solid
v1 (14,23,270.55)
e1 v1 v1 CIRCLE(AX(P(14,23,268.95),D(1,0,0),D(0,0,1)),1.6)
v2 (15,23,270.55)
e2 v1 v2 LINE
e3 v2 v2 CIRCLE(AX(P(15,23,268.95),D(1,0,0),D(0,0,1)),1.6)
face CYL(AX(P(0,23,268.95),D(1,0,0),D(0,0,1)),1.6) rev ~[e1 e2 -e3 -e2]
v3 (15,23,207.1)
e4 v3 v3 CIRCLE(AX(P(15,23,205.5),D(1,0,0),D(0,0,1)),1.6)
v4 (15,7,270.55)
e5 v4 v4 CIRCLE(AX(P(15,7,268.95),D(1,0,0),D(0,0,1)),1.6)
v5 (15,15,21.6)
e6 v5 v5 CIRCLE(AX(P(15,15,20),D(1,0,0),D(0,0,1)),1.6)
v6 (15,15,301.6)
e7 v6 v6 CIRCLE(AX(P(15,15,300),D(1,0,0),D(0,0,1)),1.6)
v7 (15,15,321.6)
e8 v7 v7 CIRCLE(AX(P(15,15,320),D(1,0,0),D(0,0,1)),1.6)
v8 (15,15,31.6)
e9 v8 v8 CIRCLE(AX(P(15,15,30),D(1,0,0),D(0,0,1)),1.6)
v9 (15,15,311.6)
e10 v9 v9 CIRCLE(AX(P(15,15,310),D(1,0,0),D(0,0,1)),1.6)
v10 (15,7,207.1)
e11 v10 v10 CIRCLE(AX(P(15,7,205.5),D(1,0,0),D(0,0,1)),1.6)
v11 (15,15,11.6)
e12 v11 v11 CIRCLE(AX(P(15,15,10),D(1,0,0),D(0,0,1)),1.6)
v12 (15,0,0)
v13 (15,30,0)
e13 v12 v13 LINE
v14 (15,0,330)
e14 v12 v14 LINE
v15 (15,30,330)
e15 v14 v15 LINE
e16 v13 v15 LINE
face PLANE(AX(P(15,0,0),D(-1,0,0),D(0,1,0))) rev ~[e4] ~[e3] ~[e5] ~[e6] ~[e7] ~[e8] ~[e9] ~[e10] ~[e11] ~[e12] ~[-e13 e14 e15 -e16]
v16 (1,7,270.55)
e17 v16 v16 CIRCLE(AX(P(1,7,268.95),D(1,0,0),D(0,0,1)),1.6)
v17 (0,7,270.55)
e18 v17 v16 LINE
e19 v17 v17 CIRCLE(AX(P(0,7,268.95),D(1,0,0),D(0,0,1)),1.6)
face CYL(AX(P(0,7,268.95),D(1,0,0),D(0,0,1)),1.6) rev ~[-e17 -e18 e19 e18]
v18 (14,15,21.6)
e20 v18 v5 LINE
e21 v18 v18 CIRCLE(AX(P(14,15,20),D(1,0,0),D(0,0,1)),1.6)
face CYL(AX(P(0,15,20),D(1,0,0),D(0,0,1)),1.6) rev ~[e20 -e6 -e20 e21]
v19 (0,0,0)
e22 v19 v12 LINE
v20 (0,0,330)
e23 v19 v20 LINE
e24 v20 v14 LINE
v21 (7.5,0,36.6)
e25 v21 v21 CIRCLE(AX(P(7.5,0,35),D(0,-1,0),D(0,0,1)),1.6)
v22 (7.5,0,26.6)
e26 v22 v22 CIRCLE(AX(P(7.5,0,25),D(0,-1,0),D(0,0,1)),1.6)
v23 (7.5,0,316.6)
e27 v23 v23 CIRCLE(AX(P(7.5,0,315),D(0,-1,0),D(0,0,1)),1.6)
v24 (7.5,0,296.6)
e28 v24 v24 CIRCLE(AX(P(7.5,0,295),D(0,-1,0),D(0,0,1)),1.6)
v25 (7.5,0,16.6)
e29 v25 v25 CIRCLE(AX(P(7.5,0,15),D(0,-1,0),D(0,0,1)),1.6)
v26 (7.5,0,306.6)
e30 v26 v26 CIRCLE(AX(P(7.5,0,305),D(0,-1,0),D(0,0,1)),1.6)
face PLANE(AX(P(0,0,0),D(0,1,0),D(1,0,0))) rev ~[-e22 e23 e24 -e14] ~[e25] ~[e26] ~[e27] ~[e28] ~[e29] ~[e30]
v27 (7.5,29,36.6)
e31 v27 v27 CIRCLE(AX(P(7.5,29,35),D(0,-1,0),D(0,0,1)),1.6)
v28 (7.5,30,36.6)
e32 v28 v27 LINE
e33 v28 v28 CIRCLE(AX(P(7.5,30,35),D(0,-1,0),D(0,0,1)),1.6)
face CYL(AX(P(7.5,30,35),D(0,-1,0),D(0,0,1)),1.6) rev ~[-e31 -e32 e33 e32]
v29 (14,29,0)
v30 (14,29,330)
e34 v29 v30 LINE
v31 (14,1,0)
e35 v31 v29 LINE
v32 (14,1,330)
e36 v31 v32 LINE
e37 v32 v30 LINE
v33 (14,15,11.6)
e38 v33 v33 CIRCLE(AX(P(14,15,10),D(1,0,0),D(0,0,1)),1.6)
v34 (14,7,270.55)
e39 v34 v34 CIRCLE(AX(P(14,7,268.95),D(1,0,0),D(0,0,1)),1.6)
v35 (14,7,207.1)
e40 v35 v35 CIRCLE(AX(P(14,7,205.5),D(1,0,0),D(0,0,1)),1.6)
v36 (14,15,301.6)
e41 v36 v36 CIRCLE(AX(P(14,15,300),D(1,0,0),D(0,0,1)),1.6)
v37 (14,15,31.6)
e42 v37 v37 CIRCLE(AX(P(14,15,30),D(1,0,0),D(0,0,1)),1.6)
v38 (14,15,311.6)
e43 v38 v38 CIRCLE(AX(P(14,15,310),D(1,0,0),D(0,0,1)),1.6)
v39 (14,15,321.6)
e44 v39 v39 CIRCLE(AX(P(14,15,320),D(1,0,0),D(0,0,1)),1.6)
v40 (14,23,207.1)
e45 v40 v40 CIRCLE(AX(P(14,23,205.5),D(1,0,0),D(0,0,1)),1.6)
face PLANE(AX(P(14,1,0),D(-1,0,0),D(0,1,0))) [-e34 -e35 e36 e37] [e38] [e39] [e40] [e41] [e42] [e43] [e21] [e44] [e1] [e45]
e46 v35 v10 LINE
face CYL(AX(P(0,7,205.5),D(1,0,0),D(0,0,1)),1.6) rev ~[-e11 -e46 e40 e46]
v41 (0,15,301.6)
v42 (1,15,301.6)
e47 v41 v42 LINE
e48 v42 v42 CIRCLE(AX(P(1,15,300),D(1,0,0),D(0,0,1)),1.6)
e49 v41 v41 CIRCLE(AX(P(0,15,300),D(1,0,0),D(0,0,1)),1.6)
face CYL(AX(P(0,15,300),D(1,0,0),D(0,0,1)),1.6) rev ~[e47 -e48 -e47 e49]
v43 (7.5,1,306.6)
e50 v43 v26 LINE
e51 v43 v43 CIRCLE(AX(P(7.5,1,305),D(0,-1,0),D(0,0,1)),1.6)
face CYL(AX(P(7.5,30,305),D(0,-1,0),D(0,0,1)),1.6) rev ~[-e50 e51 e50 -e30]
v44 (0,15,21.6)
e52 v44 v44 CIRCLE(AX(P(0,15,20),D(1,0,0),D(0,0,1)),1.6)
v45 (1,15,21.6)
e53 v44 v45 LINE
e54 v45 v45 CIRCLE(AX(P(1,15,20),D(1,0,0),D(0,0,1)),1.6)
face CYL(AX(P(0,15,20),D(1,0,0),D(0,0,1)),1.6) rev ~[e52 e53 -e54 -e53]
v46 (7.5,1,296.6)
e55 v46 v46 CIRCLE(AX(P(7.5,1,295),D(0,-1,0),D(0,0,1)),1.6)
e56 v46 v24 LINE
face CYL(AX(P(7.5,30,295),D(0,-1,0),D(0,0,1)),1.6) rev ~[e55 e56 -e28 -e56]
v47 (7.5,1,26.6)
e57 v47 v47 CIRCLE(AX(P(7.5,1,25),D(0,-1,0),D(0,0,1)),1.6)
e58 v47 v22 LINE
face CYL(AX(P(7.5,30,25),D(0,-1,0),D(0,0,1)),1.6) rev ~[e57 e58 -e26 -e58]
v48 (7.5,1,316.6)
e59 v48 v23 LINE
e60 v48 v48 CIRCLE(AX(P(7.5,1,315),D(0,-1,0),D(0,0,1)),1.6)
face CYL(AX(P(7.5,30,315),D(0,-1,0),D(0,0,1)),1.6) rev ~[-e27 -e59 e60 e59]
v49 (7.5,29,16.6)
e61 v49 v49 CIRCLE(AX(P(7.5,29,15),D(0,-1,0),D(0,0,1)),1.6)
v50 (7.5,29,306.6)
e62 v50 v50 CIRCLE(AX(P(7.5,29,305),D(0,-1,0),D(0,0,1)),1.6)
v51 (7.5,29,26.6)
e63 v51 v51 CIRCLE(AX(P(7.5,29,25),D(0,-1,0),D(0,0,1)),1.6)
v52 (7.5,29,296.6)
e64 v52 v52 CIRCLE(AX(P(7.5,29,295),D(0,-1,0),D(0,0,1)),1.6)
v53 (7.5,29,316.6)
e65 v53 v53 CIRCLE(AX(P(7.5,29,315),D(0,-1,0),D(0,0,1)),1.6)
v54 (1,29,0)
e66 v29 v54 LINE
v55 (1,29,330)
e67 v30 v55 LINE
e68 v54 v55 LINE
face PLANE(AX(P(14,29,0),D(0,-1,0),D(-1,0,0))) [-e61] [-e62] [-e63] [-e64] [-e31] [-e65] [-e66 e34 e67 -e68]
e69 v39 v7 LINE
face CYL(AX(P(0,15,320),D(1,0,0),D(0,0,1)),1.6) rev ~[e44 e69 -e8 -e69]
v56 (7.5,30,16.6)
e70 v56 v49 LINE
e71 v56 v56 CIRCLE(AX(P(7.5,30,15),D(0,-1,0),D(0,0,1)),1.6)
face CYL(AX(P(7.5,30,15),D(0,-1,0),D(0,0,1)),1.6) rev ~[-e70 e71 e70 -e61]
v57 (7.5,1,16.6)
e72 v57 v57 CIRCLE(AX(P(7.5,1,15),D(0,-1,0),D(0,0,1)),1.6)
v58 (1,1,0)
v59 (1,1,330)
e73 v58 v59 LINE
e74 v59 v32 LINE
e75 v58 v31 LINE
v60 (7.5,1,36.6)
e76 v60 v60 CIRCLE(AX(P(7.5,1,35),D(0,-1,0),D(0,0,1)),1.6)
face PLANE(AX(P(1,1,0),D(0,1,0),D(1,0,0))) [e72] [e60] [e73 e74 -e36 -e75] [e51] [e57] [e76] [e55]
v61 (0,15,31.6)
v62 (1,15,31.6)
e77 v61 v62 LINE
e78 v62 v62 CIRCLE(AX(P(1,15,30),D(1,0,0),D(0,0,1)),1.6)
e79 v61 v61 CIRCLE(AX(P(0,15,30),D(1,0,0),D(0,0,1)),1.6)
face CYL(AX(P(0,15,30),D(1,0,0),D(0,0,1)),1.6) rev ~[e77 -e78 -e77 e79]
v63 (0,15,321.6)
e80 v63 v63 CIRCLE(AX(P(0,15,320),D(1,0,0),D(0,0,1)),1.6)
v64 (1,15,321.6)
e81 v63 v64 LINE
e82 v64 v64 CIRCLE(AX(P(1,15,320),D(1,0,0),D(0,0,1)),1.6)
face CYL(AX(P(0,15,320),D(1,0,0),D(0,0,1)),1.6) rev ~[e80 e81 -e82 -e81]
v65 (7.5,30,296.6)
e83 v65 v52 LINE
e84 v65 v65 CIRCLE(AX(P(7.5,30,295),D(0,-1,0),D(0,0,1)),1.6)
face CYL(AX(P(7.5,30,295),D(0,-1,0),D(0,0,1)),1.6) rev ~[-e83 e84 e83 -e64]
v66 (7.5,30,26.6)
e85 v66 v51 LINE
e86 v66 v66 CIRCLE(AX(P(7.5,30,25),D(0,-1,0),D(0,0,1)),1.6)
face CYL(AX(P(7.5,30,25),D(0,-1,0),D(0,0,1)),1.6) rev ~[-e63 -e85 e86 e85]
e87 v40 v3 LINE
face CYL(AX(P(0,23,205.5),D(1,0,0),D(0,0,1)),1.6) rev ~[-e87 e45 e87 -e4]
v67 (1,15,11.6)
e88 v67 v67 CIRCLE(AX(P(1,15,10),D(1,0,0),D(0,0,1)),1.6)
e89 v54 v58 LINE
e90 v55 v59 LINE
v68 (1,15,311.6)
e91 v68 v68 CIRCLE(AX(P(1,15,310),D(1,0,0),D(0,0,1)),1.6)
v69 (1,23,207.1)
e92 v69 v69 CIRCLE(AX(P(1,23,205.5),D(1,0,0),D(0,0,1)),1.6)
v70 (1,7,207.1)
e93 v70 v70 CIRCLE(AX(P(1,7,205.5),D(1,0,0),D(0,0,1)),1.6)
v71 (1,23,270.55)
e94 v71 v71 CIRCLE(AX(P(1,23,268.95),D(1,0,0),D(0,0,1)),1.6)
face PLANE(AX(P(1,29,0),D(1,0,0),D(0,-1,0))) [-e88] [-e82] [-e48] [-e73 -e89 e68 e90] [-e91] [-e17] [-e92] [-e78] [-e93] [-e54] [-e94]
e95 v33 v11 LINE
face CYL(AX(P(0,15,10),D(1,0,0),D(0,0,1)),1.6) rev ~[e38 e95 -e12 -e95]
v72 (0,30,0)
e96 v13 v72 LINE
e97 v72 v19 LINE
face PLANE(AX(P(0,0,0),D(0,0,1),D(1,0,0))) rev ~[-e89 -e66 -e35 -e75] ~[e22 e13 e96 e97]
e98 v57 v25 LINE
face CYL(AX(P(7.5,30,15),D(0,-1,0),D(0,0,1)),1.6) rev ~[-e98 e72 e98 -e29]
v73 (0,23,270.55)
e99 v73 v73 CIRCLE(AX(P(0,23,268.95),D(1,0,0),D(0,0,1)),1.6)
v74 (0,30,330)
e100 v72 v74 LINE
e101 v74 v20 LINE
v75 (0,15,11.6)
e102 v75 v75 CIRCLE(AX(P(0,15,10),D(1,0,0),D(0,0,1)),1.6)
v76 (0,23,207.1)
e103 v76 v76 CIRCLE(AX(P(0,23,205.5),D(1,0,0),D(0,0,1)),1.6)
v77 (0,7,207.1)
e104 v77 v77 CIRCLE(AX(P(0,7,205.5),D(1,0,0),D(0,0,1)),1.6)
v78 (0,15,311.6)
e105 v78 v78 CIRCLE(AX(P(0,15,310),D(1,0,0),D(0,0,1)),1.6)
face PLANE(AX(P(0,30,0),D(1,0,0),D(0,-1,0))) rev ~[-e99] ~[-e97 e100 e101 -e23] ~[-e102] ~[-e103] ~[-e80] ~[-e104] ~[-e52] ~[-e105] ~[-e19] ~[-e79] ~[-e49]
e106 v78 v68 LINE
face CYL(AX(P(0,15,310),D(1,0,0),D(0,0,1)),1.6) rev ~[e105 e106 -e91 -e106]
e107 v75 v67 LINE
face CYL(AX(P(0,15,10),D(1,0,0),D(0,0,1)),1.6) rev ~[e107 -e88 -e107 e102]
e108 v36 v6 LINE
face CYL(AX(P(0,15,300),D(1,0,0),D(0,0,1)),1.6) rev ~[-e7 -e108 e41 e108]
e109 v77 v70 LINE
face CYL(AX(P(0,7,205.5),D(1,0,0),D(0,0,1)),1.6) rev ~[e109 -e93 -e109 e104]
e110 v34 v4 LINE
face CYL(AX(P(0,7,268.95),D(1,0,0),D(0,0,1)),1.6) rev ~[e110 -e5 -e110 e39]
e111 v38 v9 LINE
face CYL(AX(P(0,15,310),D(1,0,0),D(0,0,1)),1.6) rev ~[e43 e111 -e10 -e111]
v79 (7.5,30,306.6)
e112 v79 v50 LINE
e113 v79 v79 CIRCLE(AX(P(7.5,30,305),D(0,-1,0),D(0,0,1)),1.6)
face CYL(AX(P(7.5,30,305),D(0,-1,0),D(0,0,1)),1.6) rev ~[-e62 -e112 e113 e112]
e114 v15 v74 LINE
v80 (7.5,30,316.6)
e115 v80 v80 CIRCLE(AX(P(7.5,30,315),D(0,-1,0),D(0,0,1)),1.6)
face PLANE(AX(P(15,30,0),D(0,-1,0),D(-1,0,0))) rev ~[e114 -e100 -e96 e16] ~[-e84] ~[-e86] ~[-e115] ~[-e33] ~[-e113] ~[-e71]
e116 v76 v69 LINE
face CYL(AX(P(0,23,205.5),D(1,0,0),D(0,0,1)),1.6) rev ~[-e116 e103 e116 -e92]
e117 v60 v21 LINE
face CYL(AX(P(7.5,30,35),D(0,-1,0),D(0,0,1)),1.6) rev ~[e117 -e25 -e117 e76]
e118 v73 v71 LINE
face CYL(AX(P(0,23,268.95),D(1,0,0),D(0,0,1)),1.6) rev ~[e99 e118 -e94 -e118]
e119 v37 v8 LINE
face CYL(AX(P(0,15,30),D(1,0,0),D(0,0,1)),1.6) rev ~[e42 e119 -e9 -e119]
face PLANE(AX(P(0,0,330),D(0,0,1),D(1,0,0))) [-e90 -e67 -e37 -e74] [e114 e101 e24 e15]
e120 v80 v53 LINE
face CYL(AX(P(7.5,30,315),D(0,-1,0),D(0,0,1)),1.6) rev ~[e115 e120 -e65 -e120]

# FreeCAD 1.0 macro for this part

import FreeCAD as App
import Part
import Sketcher


def add_polygon(sketch, points):
    """Adds a closed chain of lines whose ends are joined by coincident constraints."""
    first, n = sketch.GeometryCount, len(points)
    for a, b in zip(points, points[1:] + points[:1]):
        sketch.addGeometry(Part.LineSegment(App.Vector(*a, 0), App.Vector(*b, 0)), False)
    for i in range(n):
        sketch.addConstraint(Sketcher.Constraint("Coincident", first + i, 2, first + (i + 1) % n, 1))

doc = App.newDocument("Part")
params = doc.addObject("Spreadsheet::Sheet", "Params")
for row, (alias, value) in enumerate([
    ("sketch1_width", "15 mm"),
    ("sketch1_width2", "13 mm"),
    ("sketch1_height", "30 mm"),
    ("sketch1_height2", "28 mm"),
    ("pad1_length", "330 mm"),
    ("sketch2_diameter", "3.2 mm"),
    ("hole_diameter", "3.2 mm"),
    ("hole_depth", "30 mm"),
    ("sketch3_diameter", "3.2 mm"),
    ("hole2_diameter", "3.2 mm"),
    ("hole2_depth", "15 mm"),
    ("sketch4_diameter", "3.2 mm"),
    ("hole3_diameter", "3.2 mm"),
    ("hole3_depth", "15 mm"),
], start=1):
    params.set(f"A{row}", alias)
    params.set(f"B{row}", "=" + value)
    params.setAlias(f"B{row}", alias)

body = doc.addObject("PartDesign::Body", "Body")

sketch1 = body.newObject("Sketcher::SketchObject", "Sketch")
sketch1.AttachmentSupport = (doc.getObject("XY_Plane"), [""])
sketch1.MapMode = "FlatFace"
add_polygon(sketch1, [(0, 30), (0, 0), (15, 0), (15, 30)])
add_polygon(sketch1, [(14, 1), (1, 1), (1, 29), (14, 29)])
sketch1.addConstraint(Sketcher.Constraint("Vertical", 0))
sketch1.addConstraint(Sketcher.Constraint("Horizontal", 1))
sketch1.addConstraint(Sketcher.Constraint("Vertical", 2))
sketch1.addConstraint(Sketcher.Constraint("Horizontal", 3))
sketch1.addConstraint(Sketcher.Constraint("Horizontal", 4))
sketch1.addConstraint(Sketcher.Constraint("Vertical", 5))
sketch1.addConstraint(Sketcher.Constraint("Horizontal", 6))
sketch1.addConstraint(Sketcher.Constraint("Vertical", 7))
sketch1.addConstraint(Sketcher.Constraint("Coincident", 0, 2, -1, 1))
sketch1.addConstraint(Sketcher.Constraint("DistanceX", 1, 1, 1, 2, 15.0))
sketch1.addConstraint(Sketcher.Constraint("DistanceX", 4, 2, 4, 1, 13.0))
sketch1.addConstraint(Sketcher.Constraint("DistanceY", 0, 2, 0, 1, 30.0))
sketch1.addConstraint(Sketcher.Constraint("DistanceY", 5, 1, 5, 2, 28.0))
sketch1.addConstraint(Sketcher.Constraint("DistanceX", -1, 1, 4, 2, 1.0))
sketch1.addConstraint(Sketcher.Constraint("DistanceY", -1, 1, 4, 2, 1.0))
sketch1.setExpression("Constraints[17]", "Params.sketch1_width")
sketch1.setExpression("Constraints[18]", "Params.sketch1_width2")
sketch1.setExpression("Constraints[19]", "Params.sketch1_height")
sketch1.setExpression("Constraints[20]", "Params.sketch1_height2")
pad1 = body.newObject("PartDesign::Pad", "Pad")
pad1.Profile = sketch1
pad1.setExpression("Length", "Params.pad1_length")

sketch2 = body.newObject("Sketcher::SketchObject", "Sketch001")
sketch2.AttachmentSupport = (doc.getObject("XZ_Plane"), [""])
sketch2.MapMode = "FlatFace"
sketch2.AttachmentOffset = App.Placement(App.Vector(0, 0, -30), App.Rotation())
sketch2.addGeometry(Part.Circle(App.Vector(7.5, 315, 0), App.Vector(0, 0, 1), 1.6), False)
sketch2.addGeometry(Part.Circle(App.Vector(7.5, 305, 0), App.Vector(0, 0, 1), 1.6), False)
sketch2.addGeometry(Part.Circle(App.Vector(7.5, 295, 0), App.Vector(0, 0, 1), 1.6), False)
sketch2.addGeometry(Part.Circle(App.Vector(7.5, 15, 0), App.Vector(0, 0, 1), 1.6), False)
sketch2.addGeometry(Part.Circle(App.Vector(7.5, 25, 0), App.Vector(0, 0, 1), 1.6), False)
sketch2.addGeometry(Part.Circle(App.Vector(7.5, 35, 0), App.Vector(0, 0, 1), 1.6), False)
sketch2.addConstraint(Sketcher.Constraint("Equal", 0, 1))
sketch2.addConstraint(Sketcher.Constraint("Equal", 1, 2))
sketch2.addConstraint(Sketcher.Constraint("Equal", 2, 3))
sketch2.addConstraint(Sketcher.Constraint("Equal", 3, 4))
sketch2.addConstraint(Sketcher.Constraint("Equal", 4, 5))
sketch2.addConstraint(Sketcher.Constraint("Vertical", 0, 3, 1, 3))
sketch2.addConstraint(Sketcher.Constraint("Vertical", 1, 3, 2, 3))
sketch2.addConstraint(Sketcher.Constraint("Vertical", 2, 3, 3, 3))
sketch2.addConstraint(Sketcher.Constraint("Vertical", 3, 3, 4, 3))
sketch2.addConstraint(Sketcher.Constraint("Vertical", 4, 3, 5, 3))
sketch2.addConstraint(Sketcher.Constraint("Diameter", 0, 3.2))
sketch2.addConstraint(Sketcher.Constraint("DistanceY", -1, 1, 0, 3, 315.0))
sketch2.addConstraint(Sketcher.Constraint("DistanceY", -1, 1, 1, 3, 305.0))
sketch2.addConstraint(Sketcher.Constraint("DistanceY", -1, 1, 2, 3, 295.0))
sketch2.addConstraint(Sketcher.Constraint("DistanceY", -1, 1, 3, 3, 15.0))
sketch2.addConstraint(Sketcher.Constraint("DistanceY", -1, 1, 4, 3, 25.0))
sketch2.addConstraint(Sketcher.Constraint("DistanceY", -1, 1, 5, 3, 35.0))
sketch2.addConstraint(Sketcher.Constraint("DistanceX", -1, 1, 0, 3, 7.5))
sketch2.setExpression("Constraints[10]", "Params.sketch2_diameter")
doc.recompute()
hole = body.newObject("PartDesign::Hole", "Hole")
hole.Profile = sketch2
hole.ThreadType = "None"
hole.setExpression("Diameter", "Params.hole_diameter")
hole.DepthType = "Dimension"
hole.setExpression("Depth", "Params.hole_depth")
hole.DrillPoint = "Flat"
hole.Reversed = True

sketch3 = body.newObject("Sketcher::SketchObject", "Sketch002")
sketch3.AttachmentSupport = (doc.getObject("YZ_Plane"), [""])
sketch3.MapMode = "FlatFace"
sketch3.addGeometry(Part.Circle(App.Vector(15, 10, 0), App.Vector(0, 0, 1), 1.6), False)
sketch3.addGeometry(Part.Circle(App.Vector(15, 20, 0), App.Vector(0, 0, 1), 1.6), False)
sketch3.addGeometry(Part.Circle(App.Vector(15, 30, 0), App.Vector(0, 0, 1), 1.6), False)
sketch3.addGeometry(Part.Circle(App.Vector(15, 300, 0), App.Vector(0, 0, 1), 1.6), False)
sketch3.addGeometry(Part.Circle(App.Vector(15, 310, 0), App.Vector(0, 0, 1), 1.6), False)
sketch3.addGeometry(Part.Circle(App.Vector(15, 320, 0), App.Vector(0, 0, 1), 1.6), False)
sketch3.addConstraint(Sketcher.Constraint("Equal", 0, 1))
sketch3.addConstraint(Sketcher.Constraint("Equal", 1, 2))
sketch3.addConstraint(Sketcher.Constraint("Equal", 2, 3))
sketch3.addConstraint(Sketcher.Constraint("Equal", 3, 4))
sketch3.addConstraint(Sketcher.Constraint("Equal", 4, 5))
sketch3.addConstraint(Sketcher.Constraint("Vertical", 0, 3, 1, 3))
sketch3.addConstraint(Sketcher.Constraint("Vertical", 1, 3, 2, 3))
sketch3.addConstraint(Sketcher.Constraint("Vertical", 2, 3, 3, 3))
sketch3.addConstraint(Sketcher.Constraint("Vertical", 3, 3, 4, 3))
sketch3.addConstraint(Sketcher.Constraint("Vertical", 4, 3, 5, 3))
sketch3.addConstraint(Sketcher.Constraint("Diameter", 0, 3.2))
sketch3.addConstraint(Sketcher.Constraint("DistanceX", -1, 1, 0, 3, 15.0))
sketch3.addConstraint(Sketcher.Constraint("DistanceY", -1, 1, 0, 3, 10.0))
sketch3.addConstraint(Sketcher.Constraint("DistanceY", -1, 1, 1, 3, 20.0))
sketch3.addConstraint(Sketcher.Constraint("DistanceY", -1, 1, 2, 3, 30.0))
sketch3.addConstraint(Sketcher.Constraint("DistanceY", -1, 1, 3, 3, 300.0))
sketch3.addConstraint(Sketcher.Constraint("DistanceY", -1, 1, 4, 3, 310.0))
sketch3.addConstraint(Sketcher.Constraint("DistanceY", -1, 1, 5, 3, 320.0))
sketch3.setExpression("Constraints[10]", "Params.sketch3_diameter")
doc.recompute()
hole2 = body.newObject("PartDesign::Hole", "Hole001")
hole2.Profile = sketch3
hole2.ThreadType = "None"
hole2.setExpression("Diameter", "Params.hole2_diameter")
hole2.DepthType = "Dimension"
hole2.setExpression("Depth", "Params.hole2_depth")
hole2.DrillPoint = "Flat"
hole2.Reversed = True

sketch4 = body.newObject("Sketcher::SketchObject", "Sketch003")
sketch4.AttachmentSupport = (doc.getObject("YZ_Plane"), [""])
sketch4.MapMode = "FlatFace"
sketch4.addGeometry(Part.Circle(App.Vector(23, 205.5, 0), App.Vector(0, 0, 1), 1.6), False)
sketch4.addGeometry(Part.Circle(App.Vector(7, 205.5, 0), App.Vector(0, 0, 1), 1.6), False)
sketch4.addGeometry(Part.Circle(App.Vector(23, 268.9, 0), App.Vector(0, 0, 1), 1.6), False)
sketch4.addGeometry(Part.Circle(App.Vector(7, 268.9, 0), App.Vector(0, 0, 1), 1.6), False)
sketch4.addConstraint(Sketcher.Constraint("Equal", 0, 1))
sketch4.addConstraint(Sketcher.Constraint("Equal", 1, 2))
sketch4.addConstraint(Sketcher.Constraint("Equal", 2, 3))
sketch4.addConstraint(Sketcher.Constraint("Horizontal", 0, 3, 1, 3))
sketch4.addConstraint(Sketcher.Constraint("Horizontal", 2, 3, 3, 3))
sketch4.addConstraint(Sketcher.Constraint("Vertical", 0, 3, 2, 3))
sketch4.addConstraint(Sketcher.Constraint("Vertical", 1, 3, 3, 3))
sketch4.addConstraint(Sketcher.Constraint("Diameter", 0, 3.2))
sketch4.addConstraint(Sketcher.Constraint("DistanceX", -1, 1, 0, 3, 23.0))
sketch4.addConstraint(Sketcher.Constraint("DistanceX", -1, 1, 1, 3, 7.0))
sketch4.addConstraint(Sketcher.Constraint("DistanceY", -1, 1, 0, 3, 205.5))
sketch4.addConstraint(Sketcher.Constraint("DistanceY", -1, 1, 2, 3, 268.95))
sketch4.setExpression("Constraints[7]", "Params.sketch4_diameter")
doc.recompute()
hole3 = body.newObject("PartDesign::Hole", "Hole002")
hole3.Profile = sketch4
hole3.ThreadType = "None"
hole3.setExpression("Diameter", "Params.hole3_diameter")
hole3.DepthType = "Dimension"
hole3.setExpression("Depth", "Params.hole3_depth")
hole3.DrillPoint = "Flat"
hole3.Reversed = True

doc.recompute()
